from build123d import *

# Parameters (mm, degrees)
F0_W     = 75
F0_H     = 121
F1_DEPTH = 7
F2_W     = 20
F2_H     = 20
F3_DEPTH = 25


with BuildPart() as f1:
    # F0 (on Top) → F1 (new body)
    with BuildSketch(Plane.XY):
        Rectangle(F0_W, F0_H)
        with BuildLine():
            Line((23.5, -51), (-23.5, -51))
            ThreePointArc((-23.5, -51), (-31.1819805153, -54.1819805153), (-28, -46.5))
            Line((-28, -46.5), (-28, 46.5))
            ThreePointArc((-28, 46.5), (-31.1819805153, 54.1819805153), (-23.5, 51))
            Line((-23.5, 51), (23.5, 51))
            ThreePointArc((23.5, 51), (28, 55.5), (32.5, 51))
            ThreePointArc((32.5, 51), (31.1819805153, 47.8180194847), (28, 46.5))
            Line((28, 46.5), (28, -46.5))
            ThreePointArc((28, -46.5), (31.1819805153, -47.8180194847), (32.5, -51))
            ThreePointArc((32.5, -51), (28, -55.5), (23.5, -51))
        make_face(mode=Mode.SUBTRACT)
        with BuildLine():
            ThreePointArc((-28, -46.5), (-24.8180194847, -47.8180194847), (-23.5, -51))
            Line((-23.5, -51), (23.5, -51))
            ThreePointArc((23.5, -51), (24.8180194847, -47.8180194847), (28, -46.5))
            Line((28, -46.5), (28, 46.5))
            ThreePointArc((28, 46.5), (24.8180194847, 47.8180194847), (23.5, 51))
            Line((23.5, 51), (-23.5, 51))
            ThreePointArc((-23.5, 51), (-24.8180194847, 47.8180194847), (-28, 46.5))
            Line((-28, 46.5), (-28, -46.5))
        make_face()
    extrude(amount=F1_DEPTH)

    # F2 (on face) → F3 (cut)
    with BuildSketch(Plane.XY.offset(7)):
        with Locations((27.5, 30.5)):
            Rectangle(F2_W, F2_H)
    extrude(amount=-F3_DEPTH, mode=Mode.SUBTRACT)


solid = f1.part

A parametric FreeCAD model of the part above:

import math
import FreeCAD as App
import Part
import Sketcher
from FreeCAD import Vector
Q = App.Units.Quantity

doc = App.newDocument("Part")
body = doc.addObject("PartDesign::Body", "Body")

# Sketch on XY plane
sketch1 = body.newObject("Sketcher::SketchObject", "Sketch")
sketch1.AttachmentSupport = (doc.getObject("XY_Plane"), [""])
sketch1.MapMode = "FlatFace"
sketch1.addGeometry([
    Part.LineSegment(Vector(-37.5, 60.5, 0), Vector(-37.5, -60.5, 0)),  # 0
    Part.LineSegment(Vector(-37.5, -60.5, 0), Vector(37.5, -60.5, 0)),  # 1
    Part.LineSegment(Vector(37.5, -60.5, 0), Vector(37.5, 60.5, 0)),  # 2
    Part.LineSegment(Vector(37.5, 60.5, 0), Vector(-37.5, 60.5, 0)),  # 3
    Part.ArcOfCircle(Part.Circle(Vector(28, -51, 0), Vector(0, 0, 1), 4.5), math.radians(180), math.radians(360)),  # 4
    Part.ArcOfCircle(Part.Circle(Vector(28, -51, 0), Vector(0, 0, 1), 4.5), math.radians(90), math.radians(180)),  # 5
    Part.ArcOfCircle(Part.Circle(Vector(28, -51, 0), Vector(0, 0, 1), 4.5), math.radians(0), math.radians(90)),  # 6
    Part.ArcOfCircle(Part.Circle(Vector(28, 51, 0), Vector(0, 0, 1), 4.5), math.radians(-90), math.radians(0)),  # 7
    Part.ArcOfCircle(Part.Circle(Vector(28, 51, 0), Vector(0, 0, 1), 4.5), math.radians(180), math.radians(270)),  # 8
    Part.ArcOfCircle(Part.Circle(Vector(28, 51, 0), Vector(0, 0, 1), 4.5), math.radians(0), math.radians(180)),  # 9
    Part.ArcOfCircle(Part.Circle(Vector(-28, 51, 0), Vector(0, 0, 1), 4.5), math.radians(0), math.radians(270)),  # 10
    Part.ArcOfCircle(Part.Circle(Vector(-28, 51, 0), Vector(0, 0, 1), 4.5), math.radians(-90), math.radians(0)),  # 11
    Part.ArcOfCircle(Part.Circle(Vector(-28, -51, 0), Vector(0, 0, 1), 4.5), math.radians(90), math.radians(360)),  # 12
    Part.ArcOfCircle(Part.Circle(Vector(-28, -51, 0), Vector(0, 0, 1), 4.5), math.radians(0), math.radians(90)),  # 13
], False)
sketch1.addConstraint([
    Sketcher.Constraint("Coincident", 0, 2, 1, 1),
    Sketcher.Constraint("Coincident", 1, 2, 2, 1),
    Sketcher.Constraint("Coincident", 2, 2, 3, 1),
    Sketcher.Constraint("Coincident", 3, 2, 0, 1),
    Sketcher.Constraint("Tangent", 4, 1, 5, 2),
    Sketcher.Constraint("Tangent", 5, 1, 6, 2),
    Sketcher.Constraint("Tangent", 6, 1, 4, 2),
    Sketcher.Constraint("Tangent", 7, 1, 8, 2),
    Sketcher.Constraint("Tangent", 8, 1, 9, 2),
    Sketcher.Constraint("Tangent", 9, 1, 7, 2),
    Sketcher.Constraint("Tangent", 10, 1, 11, 2),
    Sketcher.Constraint("Coincident", 11, 1, 10, 2),
    Sketcher.Constraint("Tangent", 12, 1, 13, 2),
    Sketcher.Constraint("Coincident", 13, 1, 12, 2),
    Sketcher.Constraint("Vertical", 0),
    Sketcher.Constraint("Horizontal", 1),
    Sketcher.Constraint("Vertical", 2),
    Sketcher.Constraint("Horizontal", 3),
    Sketcher.Constraint("Equal", 6, 7),
    Sketcher.Constraint("Equal", 9, 10),
    Sketcher.Constraint("Equal", 11, 12),
    Sketcher.Constraint("Symmetric", 4, 3, 10, 3, -1, 1),
    Sketcher.Constraint("Symmetric", 7, 3, 12, 3, -1, 1),
    Sketcher.Constraint("Symmetric", 0, 2, 2, 2, -1, 1),
    Sketcher.Constraint("Symmetric", 7, 3, 10, 3, -2),
    Sketcher.Constraint("Horizontal", 13, 3, 4, 1),
    Sketcher.Constraint("Horizontal", 4, 1, 6, 1),
    Sketcher.Constraint("Horizontal", 11, 3, 8, 1),
    Sketcher.Constraint("Horizontal", 8, 1, 9, 1),
    Sketcher.Constraint("Horizontal", 9, 1, 10, 1),
    Sketcher.Constraint("Horizontal", 6, 1, 13, 1),
    Sketcher.Constraint("Vertical", 9, 3, 5, 1),
    Sketcher.Constraint("Vertical", 5, 1, 7, 1),
    Sketcher.Constraint("Vertical", 13, 3, 11, 1),
    Sketcher.Constraint("Vertical", 11, 1, 12, 1),
    Sketcher.Constraint("Radius", 4, Q("4.5 mm")),
    Sketcher.Constraint("DistanceX", 1, 1, 1, 2, Q("75 mm")),
    Sketcher.Constraint("DistanceY", 0, 2, 0, 1, Q("121 mm")),
    Sketcher.Constraint("DistanceX", -1, 1, 4, 3, Q("28 mm")),
    Sketcher.Constraint("DistanceY", 4, 3, -1, 1, Q("51 mm")),
])
pad1 = body.newObject("PartDesign::Pad", "Pad")
pad1.Profile = sketch1
pad1.Length = 7

# Sketch on XY plane
sketch2 = body.newObject("Sketcher::SketchObject", "Sketch001")
sketch2.AttachmentSupport = (doc.getObject("XY_Plane"), [""])
sketch2.MapMode = "FlatFace"
sketch2.AttachmentOffset = App.Placement(Vector(0, 0, 7), App.Rotation())
sketch2.addGeometry([
    Part.LineSegment(Vector(17.5, 40.5, 0), Vector(17.5, 20.5, 0)),
    Part.LineSegment(Vector(17.5, 20.5, 0), Vector(37.5, 20.5, 0)),
    Part.LineSegment(Vector(37.5, 20.5, 0), Vector(37.5, 40.5, 0)),
    Part.LineSegment(Vector(37.5, 40.5, 0), Vector(17.5, 40.5, 0)),
], False)
sketch2.addConstraint([
    Sketcher.Constraint("Coincident", 0, 2, 1, 1),
    Sketcher.Constraint("Coincident", 1, 2, 2, 1),
    Sketcher.Constraint("Coincident", 2, 2, 3, 1),
    Sketcher.Constraint("Coincident", 3, 2, 0, 1),
    Sketcher.Constraint("Vertical", 0),
    Sketcher.Constraint("Horizontal", 1),
    Sketcher.Constraint("Vertical", 2),
    Sketcher.Constraint("Horizontal", 3),
    Sketcher.Constraint("Equal", 3, 0),
    Sketcher.Constraint("DistanceX", 1, 1, 1, 2, Q("20 mm")),
    Sketcher.Constraint("DistanceX", -1, 1, 0, 2, Q("17.5 mm")),
    Sketcher.Constraint("DistanceY", -1, 1, 0, 2, Q("20.5 mm")),
])
pocket1 = body.newObject("PartDesign::Pocket", "Pocket")
pocket1.Profile = sketch2
pocket1.Length = 25

doc.recompute()
